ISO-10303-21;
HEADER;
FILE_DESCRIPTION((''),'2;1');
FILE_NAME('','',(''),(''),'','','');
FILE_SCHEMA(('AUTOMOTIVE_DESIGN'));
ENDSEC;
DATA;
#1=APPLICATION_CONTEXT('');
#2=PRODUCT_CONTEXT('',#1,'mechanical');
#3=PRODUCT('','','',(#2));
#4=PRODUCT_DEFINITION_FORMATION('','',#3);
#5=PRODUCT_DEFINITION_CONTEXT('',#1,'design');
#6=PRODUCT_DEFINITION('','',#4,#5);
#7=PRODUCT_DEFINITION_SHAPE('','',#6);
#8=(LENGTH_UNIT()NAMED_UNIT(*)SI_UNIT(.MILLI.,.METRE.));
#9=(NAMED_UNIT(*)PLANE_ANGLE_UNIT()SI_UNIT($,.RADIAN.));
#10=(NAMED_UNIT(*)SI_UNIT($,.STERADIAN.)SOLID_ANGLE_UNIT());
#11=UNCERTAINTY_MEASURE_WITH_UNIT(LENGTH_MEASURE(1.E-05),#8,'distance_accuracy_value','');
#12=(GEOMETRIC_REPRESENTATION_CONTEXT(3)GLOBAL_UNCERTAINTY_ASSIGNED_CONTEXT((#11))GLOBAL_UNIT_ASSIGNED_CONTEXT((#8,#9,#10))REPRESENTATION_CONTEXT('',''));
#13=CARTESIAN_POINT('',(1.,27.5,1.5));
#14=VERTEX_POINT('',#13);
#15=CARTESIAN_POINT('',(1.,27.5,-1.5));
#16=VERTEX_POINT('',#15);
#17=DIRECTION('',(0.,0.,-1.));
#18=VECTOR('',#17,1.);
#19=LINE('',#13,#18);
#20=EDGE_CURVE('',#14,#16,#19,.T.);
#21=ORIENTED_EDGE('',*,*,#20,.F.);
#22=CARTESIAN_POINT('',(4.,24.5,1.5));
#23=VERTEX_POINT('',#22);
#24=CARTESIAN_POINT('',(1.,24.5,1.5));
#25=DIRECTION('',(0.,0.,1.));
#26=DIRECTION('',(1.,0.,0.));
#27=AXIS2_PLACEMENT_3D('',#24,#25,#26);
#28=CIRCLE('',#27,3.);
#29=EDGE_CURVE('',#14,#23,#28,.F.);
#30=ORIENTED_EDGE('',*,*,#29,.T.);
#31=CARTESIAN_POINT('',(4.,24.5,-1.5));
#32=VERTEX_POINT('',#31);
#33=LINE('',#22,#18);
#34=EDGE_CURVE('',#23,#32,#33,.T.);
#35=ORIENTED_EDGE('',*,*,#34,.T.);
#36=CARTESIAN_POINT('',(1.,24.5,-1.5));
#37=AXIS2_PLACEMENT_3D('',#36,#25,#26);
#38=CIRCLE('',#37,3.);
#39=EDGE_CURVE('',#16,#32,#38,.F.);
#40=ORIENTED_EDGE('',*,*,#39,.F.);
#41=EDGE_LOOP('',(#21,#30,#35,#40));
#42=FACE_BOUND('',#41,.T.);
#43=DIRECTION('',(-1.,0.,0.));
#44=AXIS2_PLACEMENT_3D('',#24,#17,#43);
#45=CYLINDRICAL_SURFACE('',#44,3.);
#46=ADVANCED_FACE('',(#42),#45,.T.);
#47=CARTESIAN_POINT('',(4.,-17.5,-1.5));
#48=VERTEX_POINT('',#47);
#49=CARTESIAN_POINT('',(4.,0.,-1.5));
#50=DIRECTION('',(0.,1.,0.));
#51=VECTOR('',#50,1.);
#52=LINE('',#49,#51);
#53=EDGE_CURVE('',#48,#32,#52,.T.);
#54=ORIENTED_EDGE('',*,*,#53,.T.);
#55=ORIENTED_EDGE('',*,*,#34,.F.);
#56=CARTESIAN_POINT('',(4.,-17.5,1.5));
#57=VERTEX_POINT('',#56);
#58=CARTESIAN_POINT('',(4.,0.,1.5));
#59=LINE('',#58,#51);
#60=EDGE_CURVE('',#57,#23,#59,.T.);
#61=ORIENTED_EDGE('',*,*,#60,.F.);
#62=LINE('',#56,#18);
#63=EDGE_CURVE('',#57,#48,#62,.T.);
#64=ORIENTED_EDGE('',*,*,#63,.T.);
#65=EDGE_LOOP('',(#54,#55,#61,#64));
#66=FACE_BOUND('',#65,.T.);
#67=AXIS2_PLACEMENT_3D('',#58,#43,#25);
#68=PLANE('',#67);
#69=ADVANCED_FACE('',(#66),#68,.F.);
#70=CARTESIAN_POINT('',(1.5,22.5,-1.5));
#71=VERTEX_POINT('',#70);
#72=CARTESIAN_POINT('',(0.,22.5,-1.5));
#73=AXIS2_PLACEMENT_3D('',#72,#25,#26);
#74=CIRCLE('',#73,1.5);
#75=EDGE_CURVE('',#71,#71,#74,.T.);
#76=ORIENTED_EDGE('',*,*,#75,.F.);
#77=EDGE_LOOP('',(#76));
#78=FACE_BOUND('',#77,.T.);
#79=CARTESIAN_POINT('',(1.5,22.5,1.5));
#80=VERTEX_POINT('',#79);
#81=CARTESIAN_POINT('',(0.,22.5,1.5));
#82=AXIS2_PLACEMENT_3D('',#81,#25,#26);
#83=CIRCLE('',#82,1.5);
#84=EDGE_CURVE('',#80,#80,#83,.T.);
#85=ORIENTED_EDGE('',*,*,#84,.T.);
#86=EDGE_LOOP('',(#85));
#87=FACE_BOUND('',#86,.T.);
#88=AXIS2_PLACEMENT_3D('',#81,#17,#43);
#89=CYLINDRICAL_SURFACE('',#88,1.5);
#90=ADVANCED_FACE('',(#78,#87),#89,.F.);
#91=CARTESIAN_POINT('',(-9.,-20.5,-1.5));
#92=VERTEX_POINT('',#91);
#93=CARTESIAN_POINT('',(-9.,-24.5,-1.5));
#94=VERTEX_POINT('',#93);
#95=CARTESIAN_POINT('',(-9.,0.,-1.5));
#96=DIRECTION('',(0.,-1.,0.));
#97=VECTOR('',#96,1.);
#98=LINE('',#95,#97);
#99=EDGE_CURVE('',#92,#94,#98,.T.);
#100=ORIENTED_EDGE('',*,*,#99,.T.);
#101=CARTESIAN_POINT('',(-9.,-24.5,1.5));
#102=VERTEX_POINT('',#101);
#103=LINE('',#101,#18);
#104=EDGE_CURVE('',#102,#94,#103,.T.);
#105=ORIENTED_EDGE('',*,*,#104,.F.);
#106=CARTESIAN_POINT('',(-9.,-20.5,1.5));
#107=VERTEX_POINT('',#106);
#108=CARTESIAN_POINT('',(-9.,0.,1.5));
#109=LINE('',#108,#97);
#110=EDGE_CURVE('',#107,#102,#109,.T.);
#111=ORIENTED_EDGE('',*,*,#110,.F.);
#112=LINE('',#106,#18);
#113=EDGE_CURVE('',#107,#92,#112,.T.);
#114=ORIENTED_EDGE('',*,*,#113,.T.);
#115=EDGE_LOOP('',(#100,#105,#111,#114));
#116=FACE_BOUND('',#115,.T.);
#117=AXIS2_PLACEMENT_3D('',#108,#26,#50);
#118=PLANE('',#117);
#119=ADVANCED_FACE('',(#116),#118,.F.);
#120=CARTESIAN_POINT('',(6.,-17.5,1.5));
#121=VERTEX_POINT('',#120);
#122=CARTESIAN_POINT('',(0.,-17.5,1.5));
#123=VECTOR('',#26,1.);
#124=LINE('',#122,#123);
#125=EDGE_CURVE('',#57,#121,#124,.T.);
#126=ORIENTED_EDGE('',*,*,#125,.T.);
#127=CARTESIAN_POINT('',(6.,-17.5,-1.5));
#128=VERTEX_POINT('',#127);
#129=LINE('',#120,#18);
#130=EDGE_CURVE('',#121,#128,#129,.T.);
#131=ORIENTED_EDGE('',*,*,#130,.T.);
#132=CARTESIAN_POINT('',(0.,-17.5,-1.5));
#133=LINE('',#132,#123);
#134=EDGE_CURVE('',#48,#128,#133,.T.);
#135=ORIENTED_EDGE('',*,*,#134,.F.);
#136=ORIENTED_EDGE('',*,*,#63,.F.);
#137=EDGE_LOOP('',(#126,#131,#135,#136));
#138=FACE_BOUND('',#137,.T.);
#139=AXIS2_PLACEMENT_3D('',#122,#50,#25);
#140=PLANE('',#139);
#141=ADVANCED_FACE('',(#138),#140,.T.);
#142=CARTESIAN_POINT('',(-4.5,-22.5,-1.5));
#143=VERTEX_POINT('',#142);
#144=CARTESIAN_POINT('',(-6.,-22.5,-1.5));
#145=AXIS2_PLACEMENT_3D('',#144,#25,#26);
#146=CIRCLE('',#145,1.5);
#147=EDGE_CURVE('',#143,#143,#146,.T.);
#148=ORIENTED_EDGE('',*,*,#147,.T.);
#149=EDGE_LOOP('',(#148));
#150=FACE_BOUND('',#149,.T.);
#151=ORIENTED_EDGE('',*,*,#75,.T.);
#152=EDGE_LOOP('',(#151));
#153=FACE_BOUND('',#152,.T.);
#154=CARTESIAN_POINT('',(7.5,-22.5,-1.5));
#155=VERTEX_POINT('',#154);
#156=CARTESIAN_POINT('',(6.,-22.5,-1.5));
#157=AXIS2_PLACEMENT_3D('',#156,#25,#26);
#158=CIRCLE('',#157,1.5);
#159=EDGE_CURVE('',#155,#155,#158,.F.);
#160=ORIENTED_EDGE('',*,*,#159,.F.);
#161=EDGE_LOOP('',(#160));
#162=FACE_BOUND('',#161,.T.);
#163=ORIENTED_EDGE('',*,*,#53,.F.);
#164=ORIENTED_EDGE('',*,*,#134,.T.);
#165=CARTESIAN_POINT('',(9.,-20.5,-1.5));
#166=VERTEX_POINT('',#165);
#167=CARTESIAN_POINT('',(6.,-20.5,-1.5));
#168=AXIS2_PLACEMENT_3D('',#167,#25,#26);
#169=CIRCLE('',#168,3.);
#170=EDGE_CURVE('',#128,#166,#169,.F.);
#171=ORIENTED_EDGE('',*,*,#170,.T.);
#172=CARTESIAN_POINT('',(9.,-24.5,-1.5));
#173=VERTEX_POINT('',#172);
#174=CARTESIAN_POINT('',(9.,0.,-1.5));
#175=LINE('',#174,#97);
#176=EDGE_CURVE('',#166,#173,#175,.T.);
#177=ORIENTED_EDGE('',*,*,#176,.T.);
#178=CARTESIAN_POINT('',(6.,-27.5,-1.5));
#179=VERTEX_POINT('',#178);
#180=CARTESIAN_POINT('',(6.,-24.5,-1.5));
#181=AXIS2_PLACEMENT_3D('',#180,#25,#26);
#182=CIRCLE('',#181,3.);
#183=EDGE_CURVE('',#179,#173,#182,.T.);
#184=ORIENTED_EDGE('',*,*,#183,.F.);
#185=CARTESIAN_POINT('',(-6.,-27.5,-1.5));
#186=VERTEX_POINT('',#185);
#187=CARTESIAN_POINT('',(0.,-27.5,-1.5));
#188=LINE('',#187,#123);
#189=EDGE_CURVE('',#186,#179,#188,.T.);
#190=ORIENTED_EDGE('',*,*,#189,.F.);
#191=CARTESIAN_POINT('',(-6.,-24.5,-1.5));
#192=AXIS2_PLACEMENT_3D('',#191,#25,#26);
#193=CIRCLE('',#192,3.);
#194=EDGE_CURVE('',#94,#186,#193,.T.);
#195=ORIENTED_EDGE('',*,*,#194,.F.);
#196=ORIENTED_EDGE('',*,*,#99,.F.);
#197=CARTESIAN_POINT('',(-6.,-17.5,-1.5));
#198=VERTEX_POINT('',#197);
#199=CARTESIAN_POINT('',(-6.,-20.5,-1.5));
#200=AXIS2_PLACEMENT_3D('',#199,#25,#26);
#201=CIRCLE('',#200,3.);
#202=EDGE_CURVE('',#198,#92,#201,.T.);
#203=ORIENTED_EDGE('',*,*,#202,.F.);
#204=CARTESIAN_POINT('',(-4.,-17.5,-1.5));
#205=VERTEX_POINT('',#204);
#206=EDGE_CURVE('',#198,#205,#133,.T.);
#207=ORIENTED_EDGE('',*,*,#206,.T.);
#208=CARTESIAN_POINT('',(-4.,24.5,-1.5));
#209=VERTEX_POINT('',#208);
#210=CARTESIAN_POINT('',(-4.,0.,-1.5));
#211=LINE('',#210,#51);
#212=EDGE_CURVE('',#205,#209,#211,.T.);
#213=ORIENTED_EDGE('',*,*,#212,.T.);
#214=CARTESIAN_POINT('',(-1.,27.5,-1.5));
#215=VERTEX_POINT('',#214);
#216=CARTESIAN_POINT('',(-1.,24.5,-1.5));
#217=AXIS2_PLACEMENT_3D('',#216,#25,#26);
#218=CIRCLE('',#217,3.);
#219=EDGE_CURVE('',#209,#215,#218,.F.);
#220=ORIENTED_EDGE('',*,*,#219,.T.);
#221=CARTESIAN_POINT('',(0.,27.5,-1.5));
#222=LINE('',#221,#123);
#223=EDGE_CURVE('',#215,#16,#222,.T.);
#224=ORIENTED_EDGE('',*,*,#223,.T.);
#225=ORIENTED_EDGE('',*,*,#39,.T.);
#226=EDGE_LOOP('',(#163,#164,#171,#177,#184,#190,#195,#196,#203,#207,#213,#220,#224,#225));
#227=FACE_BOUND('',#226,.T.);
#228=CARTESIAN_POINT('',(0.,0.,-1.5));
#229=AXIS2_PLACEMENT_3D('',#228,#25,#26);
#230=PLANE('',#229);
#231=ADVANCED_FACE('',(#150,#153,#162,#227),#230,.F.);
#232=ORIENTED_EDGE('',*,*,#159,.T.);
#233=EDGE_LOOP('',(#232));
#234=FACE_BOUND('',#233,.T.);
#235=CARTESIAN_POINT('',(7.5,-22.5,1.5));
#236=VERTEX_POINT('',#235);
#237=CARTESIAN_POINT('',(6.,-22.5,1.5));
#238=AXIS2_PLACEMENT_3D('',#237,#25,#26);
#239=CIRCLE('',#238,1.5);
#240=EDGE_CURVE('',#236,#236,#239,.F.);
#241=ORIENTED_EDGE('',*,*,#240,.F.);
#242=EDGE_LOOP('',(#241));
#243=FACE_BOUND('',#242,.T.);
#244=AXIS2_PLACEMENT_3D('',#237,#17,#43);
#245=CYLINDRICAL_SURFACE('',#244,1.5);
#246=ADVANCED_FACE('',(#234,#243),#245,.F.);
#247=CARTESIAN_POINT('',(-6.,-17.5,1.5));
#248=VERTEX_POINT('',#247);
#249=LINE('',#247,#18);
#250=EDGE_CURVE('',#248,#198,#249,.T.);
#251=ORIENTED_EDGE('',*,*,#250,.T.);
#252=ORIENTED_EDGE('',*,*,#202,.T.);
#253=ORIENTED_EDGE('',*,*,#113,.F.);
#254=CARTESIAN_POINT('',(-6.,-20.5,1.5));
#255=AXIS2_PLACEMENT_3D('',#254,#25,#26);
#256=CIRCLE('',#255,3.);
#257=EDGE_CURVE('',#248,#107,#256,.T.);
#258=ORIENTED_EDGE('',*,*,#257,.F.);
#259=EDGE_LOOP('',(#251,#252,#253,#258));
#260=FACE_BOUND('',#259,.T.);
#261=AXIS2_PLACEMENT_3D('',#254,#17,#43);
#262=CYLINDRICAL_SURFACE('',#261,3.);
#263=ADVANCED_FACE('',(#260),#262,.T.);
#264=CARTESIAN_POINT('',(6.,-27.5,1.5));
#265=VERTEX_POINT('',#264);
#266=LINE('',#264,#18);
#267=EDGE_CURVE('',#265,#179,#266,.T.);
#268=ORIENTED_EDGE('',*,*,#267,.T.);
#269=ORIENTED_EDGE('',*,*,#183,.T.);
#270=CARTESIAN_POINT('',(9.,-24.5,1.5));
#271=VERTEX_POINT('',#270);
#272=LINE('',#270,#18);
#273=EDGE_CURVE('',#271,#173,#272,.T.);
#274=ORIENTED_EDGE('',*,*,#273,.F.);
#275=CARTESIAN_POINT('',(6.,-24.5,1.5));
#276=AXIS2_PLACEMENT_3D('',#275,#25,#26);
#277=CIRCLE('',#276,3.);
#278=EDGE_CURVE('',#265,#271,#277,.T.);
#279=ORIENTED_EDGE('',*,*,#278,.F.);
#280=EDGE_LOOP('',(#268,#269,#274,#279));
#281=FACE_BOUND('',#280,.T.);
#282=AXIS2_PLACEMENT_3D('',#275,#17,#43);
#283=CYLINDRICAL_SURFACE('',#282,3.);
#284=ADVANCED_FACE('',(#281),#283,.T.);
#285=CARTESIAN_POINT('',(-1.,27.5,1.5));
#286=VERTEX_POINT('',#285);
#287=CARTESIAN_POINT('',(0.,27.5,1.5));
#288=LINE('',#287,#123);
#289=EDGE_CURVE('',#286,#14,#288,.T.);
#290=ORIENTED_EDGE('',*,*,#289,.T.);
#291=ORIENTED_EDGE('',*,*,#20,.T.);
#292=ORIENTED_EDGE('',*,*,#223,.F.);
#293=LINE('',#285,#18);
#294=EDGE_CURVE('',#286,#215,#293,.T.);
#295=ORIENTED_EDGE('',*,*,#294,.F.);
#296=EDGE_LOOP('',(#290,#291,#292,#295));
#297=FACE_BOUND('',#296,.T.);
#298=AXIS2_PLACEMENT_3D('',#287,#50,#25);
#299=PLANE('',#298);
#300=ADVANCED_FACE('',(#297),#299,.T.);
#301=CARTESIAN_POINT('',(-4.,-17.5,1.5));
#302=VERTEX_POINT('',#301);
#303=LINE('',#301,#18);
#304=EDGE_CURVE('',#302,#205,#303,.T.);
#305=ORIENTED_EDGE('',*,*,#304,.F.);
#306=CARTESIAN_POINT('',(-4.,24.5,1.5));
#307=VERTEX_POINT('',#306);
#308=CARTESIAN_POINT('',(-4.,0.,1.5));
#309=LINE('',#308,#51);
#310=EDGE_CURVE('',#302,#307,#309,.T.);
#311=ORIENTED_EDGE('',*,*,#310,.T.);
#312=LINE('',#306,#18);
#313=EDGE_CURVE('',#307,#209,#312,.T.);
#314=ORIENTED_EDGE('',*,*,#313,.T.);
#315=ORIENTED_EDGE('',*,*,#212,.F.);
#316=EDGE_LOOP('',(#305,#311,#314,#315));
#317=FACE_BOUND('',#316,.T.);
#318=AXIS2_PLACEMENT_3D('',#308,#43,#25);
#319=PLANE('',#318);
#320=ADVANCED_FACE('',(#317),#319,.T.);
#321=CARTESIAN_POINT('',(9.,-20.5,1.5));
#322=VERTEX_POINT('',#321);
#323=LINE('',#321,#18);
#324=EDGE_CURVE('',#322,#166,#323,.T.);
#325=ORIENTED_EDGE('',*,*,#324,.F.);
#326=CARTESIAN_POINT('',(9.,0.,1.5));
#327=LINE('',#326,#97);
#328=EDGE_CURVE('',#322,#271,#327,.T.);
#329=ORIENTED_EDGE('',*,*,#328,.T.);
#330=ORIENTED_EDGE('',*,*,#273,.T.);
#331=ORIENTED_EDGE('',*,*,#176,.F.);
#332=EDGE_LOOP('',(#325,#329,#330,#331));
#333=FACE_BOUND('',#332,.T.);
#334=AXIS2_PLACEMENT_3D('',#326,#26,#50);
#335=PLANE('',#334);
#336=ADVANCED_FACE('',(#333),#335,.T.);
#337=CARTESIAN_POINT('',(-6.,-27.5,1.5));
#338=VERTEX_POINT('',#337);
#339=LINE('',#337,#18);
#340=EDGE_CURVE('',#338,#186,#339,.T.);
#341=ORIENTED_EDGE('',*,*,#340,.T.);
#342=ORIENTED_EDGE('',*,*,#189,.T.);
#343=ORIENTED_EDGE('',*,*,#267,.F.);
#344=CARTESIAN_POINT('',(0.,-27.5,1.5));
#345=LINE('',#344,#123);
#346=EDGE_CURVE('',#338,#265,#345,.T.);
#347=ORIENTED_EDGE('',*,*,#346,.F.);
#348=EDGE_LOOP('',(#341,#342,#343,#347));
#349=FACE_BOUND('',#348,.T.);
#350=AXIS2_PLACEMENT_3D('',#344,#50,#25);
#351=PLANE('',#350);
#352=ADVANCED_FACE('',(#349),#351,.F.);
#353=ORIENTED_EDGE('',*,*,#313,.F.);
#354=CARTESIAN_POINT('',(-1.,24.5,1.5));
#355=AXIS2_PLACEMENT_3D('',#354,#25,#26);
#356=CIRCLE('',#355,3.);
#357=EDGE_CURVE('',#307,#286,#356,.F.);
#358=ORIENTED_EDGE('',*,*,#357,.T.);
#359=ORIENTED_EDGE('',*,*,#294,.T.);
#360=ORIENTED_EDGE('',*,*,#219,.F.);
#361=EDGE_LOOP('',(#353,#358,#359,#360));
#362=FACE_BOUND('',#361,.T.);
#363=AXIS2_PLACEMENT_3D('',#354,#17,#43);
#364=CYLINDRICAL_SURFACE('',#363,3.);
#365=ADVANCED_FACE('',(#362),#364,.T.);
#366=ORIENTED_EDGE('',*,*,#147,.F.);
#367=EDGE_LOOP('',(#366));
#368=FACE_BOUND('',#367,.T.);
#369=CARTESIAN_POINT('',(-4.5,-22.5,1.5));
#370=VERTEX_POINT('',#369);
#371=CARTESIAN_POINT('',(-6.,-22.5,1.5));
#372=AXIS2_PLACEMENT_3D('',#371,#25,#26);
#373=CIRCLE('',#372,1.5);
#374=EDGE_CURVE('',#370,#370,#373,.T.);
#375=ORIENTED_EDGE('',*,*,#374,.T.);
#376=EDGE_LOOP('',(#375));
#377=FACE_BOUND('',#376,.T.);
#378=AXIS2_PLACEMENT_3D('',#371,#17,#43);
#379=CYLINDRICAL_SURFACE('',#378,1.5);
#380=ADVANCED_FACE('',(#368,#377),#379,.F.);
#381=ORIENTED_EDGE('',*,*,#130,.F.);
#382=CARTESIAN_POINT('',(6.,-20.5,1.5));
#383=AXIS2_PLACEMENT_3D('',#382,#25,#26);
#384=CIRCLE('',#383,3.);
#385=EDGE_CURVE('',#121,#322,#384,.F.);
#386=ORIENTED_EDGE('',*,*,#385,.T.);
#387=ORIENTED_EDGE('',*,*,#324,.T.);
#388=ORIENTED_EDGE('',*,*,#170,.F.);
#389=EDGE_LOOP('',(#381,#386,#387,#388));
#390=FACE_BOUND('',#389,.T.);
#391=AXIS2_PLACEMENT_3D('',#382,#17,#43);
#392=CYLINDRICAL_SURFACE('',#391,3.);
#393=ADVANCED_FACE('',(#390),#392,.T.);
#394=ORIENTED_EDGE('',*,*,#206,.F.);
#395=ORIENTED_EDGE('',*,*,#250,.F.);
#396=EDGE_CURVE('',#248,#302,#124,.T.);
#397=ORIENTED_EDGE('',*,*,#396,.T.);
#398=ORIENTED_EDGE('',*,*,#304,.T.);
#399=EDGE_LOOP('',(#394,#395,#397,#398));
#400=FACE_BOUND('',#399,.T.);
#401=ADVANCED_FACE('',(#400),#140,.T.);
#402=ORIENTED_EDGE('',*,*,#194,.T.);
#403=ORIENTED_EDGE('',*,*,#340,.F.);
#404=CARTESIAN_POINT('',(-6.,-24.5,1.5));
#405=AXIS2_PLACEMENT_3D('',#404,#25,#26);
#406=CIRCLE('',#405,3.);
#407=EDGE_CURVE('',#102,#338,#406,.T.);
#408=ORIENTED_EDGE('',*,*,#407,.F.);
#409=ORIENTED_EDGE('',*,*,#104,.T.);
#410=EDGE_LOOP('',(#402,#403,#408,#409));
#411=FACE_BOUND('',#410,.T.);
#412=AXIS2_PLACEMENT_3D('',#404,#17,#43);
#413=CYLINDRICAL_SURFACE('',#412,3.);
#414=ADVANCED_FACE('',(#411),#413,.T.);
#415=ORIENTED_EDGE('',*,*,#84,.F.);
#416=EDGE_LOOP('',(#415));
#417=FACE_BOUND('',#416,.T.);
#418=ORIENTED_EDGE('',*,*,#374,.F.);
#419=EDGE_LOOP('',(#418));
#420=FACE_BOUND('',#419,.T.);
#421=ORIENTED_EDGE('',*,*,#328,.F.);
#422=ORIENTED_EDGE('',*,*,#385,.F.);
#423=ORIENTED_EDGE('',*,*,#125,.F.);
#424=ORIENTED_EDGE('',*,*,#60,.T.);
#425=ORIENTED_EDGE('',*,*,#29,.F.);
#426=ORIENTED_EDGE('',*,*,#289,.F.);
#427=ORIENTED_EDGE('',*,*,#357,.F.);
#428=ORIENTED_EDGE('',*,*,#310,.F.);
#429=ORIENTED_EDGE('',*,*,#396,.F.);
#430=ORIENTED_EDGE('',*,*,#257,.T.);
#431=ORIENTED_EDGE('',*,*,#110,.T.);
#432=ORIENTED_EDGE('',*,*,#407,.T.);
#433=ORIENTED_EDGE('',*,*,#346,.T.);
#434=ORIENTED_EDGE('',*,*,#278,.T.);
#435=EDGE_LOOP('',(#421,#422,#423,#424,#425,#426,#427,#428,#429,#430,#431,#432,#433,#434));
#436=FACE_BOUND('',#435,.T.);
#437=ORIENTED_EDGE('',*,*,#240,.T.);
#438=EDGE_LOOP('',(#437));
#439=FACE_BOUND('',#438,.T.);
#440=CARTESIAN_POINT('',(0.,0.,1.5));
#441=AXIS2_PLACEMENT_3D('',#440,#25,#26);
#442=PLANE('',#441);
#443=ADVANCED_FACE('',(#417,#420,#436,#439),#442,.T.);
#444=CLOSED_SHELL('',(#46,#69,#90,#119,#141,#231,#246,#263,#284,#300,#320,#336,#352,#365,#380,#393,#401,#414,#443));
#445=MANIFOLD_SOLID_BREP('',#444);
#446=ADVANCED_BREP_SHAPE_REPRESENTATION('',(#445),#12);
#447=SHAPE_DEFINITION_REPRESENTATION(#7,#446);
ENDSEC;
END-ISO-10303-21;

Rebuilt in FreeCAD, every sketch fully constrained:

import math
import FreeCAD as App
import Part
import Sketcher
from FreeCAD import Vector

doc = App.newDocument("Part")
body = doc.addObject("PartDesign::Body", "Body")

# Sketch on XY plane
sketch1 = body.newObject("Sketcher::SketchObject", "Sketch")
sketch1.AttachmentSupport = (doc.getObject("XY_Plane"), [""])
sketch1.MapMode = "FlatFace"
sketch1.addGeometry([
    Part.LineSegment(Vector(-4, 24.5, 0), Vector(-4, -17.5, 0)),  # 0
    Part.LineSegment(Vector(-4, -17.5, 0), Vector(-6, -17.5, 0)),  # 1
    Part.ArcOfCircle(Part.Circle(Vector(-6, -20.5, 0), Vector(0, 0, 1), 3), math.radians(90), math.radians(180)),  # 2
    Part.LineSegment(Vector(-9, -20.5, 0), Vector(-9, -24.5, 0)),  # 3
    Part.ArcOfCircle(Part.Circle(Vector(-6, -24.5, 0), Vector(0, 0, 1), 3), math.radians(180), math.radians(270)),  # 4
    Part.LineSegment(Vector(-6, -27.5, 0), Vector(6, -27.5, 0)),  # 5
    Part.ArcOfCircle(Part.Circle(Vector(6, -24.5, 0), Vector(0, 0, 1), 3), math.radians(-90), math.radians(0)),  # 6
    Part.LineSegment(Vector(9, -24.5, 0), Vector(9, -20.5, 0)),  # 7
    Part.ArcOfCircle(Part.Circle(Vector(6, -20.5, 0), Vector(0, 0, 1), 3), math.radians(0), math.radians(90)),  # 8
    Part.LineSegment(Vector(6, -17.5, 0), Vector(4, -17.5, 0)),  # 9
    Part.LineSegment(Vector(4, -17.5, 0), Vector(4, 24.5, 0)),  # 10
    Part.ArcOfCircle(Part.Circle(Vector(1, 24.5, 0), Vector(0, 0, 1), 3), math.radians(0), math.radians(90)),  # 11
    Part.LineSegment(Vector(1, 27.5, 0), Vector(-1, 27.5, 0)),  # 12
    Part.ArcOfCircle(Part.Circle(Vector(-1, 24.5, 0), Vector(0, 0, 1), 3), math.radians(90), math.radians(180)),  # 13
    Part.Circle(Vector(0, 22.5, 0), Vector(0, 0, 1), 1.5),  # 14
    Part.Circle(Vector(-6, -22.5, 0), Vector(0, 0, 1), 1.5),  # 15
    Part.Circle(Vector(6, -22.5, 0), Vector(0, 0, 1), 1.5),  # 16
], False)
sketch1.addConstraint([
    Sketcher.Constraint("Coincident", 0, 2, 1, 1),
    Sketcher.Constraint("Tangent", 1, 2, 2, 1),
    Sketcher.Constraint("Tangent", 2, 2, 3, 1),
    Sketcher.Constraint("Tangent", 3, 2, 4, 1),
    Sketcher.Constraint("Tangent", 4, 2, 5, 1),
    Sketcher.Constraint("Tangent", 5, 2, 6, 1),
    Sketcher.Constraint("Tangent", 6, 2, 7, 1),
    Sketcher.Constraint("Tangent", 7, 2, 8, 1),
    Sketcher.Constraint("Tangent", 8, 2, 9, 1),
    Sketcher.Constraint("Coincident", 9, 2, 10, 1),
    Sketcher.Constraint("Tangent", 10, 2, 11, 1),
    Sketcher.Constraint("Tangent", 11, 2, 12, 1),
    Sketcher.Constraint("Tangent", 12, 2, 13, 1),
    Sketcher.Constraint("Tangent", 13, 2, 0, 1),
    Sketcher.Constraint("Vertical", 0),
    Sketcher.Constraint("Horizontal", 1),
    Sketcher.Constraint("Vertical", 3),
    Sketcher.Constraint("Horizontal", 5),
    Sketcher.Constraint("Vertical", 7),
    Sketcher.Constraint("Horizontal", 9),
    Sketcher.Constraint("Vertical", 10),
    Sketcher.Constraint("Horizontal", 12),
    Sketcher.Constraint("Equal", 2, 4),
    Sketcher.Constraint("Equal", 4, 6),
    Sketcher.Constraint("Equal", 6, 8),
    Sketcher.Constraint("Equal", 8, 11),
    Sketcher.Constraint("Equal", 11, 13),
    Sketcher.Constraint("Equal", 14, 15),
    Sketcher.Constraint("Equal", 15, 16),
    Sketcher.Constraint("Symmetric", 2, 3, 8, 3, -2),
    Sketcher.Constraint("Symmetric", 15, 3, 16, 3, -2),
    Sketcher.Constraint("PointOnObject", 14, 3, -2),
    Sketcher.Constraint("Vertical", 4, 3, 15, 3),
    Sketcher.Constraint("Equal", 1, 9),
    Sketcher.Constraint("Equal", 9, 12),
    Sketcher.Constraint("Diameter", 14, 3.0),
    Sketcher.Constraint("Radius", 2, 3.0),
    Sketcher.Constraint("DistanceX", 1, 2, 1, 1, 2.0),
    Sketcher.Constraint("DistanceY", 0, 2, 0, 1, 42.0),
    Sketcher.Constraint("DistanceY", 3, 2, 3, 1, 4.0),
    Sketcher.Constraint("DistanceY", 14, 3, 11, 3, 2.0),
    Sketcher.Constraint("DistanceY", 15, 3, 2, 3, 2.0),
    Sketcher.Constraint("DistanceY", 2, 3, -1, 1, 20.5),
])
pad1 = body.newObject("PartDesign::Pad", "Pad")
pad1.Profile = sketch1
pad1.Length = 3
pad1.Midplane = True

doc.recompute()
